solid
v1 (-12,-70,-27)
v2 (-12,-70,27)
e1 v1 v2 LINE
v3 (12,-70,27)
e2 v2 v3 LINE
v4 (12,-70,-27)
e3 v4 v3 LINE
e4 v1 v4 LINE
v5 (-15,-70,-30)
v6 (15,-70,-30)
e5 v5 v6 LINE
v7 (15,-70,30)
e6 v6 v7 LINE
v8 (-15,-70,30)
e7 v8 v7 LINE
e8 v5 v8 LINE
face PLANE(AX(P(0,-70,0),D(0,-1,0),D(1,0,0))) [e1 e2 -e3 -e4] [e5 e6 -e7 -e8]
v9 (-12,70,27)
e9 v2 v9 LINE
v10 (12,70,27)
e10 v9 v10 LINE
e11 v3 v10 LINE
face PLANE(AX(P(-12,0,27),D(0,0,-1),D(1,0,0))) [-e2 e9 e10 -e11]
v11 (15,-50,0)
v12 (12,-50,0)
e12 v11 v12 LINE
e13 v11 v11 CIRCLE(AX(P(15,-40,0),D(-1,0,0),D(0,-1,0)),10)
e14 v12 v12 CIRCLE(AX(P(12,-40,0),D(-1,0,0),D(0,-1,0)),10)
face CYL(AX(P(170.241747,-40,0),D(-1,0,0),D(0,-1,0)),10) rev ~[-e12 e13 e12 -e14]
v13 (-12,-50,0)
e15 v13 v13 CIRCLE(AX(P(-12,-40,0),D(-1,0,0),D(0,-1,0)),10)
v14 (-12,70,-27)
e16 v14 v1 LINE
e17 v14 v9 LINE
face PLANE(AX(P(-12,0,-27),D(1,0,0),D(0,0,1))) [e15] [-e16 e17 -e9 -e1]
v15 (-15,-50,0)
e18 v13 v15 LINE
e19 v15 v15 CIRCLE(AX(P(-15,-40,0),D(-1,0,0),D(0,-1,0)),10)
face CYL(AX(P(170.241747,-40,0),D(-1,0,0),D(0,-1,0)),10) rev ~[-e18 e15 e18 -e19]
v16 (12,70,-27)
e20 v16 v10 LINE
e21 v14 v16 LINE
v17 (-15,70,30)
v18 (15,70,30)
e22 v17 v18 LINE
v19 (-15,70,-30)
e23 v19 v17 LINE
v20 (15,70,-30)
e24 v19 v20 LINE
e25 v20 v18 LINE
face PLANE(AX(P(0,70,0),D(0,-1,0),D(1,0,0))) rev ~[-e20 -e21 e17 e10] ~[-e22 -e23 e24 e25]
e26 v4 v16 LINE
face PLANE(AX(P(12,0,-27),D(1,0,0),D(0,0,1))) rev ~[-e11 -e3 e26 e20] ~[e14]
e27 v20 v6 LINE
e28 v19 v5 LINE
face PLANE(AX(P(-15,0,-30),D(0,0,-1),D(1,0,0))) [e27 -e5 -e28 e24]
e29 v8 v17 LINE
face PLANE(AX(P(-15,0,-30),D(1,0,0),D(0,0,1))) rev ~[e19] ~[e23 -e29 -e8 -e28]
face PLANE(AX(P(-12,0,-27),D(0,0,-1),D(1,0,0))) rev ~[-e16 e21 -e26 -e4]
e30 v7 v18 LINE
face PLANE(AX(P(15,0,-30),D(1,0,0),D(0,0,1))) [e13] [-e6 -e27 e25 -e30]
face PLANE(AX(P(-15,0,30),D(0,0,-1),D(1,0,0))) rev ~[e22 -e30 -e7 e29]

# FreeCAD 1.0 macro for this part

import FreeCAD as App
import Part
import Sketcher
from FreeCAD import Vector


def add_polygon(sketch, points):
    """Adds a closed chain of lines whose ends are joined by coincident constraints."""
    first, n = sketch.GeometryCount, len(points)
    for a, b in zip(points, points[1:] + points[:1]):
        sketch.addGeometry(Part.LineSegment(App.Vector(*a, 0), App.Vector(*b, 0)), False)
    for i in range(n):
        sketch.addConstraint(Sketcher.Constraint("Coincident", first + i, 2, first + (i + 1) % n, 1))

doc = App.newDocument("Part")
params = doc.addObject("Spreadsheet::Sheet", "Params")
for row, (alias, value) in enumerate([
    ("sketch1_width", "30 mm"),
    ("sketch1_width2", "24 mm"),
    ("sketch1_height", "60 mm"),
    ("sketch1_height2", "54 mm"),
    ("pad1_length", "140 mm"),
    ("sketch2_diameter", "20 mm"),
    ("hole_diameter", "20 mm"),
], start=1):
    params.set(f"A{row}", alias)
    params.set(f"B{row}", "=" + value)
    params.setAlias(f"B{row}", alias)

body = doc.addObject("PartDesign::Body", "Body")

# Sketch on XZ plane
sketch1 = doc.addObject("Sketcher::SketchObject", "Sketch")
body.addObject(sketch1)
sketch1.AttachmentSupport = (doc.XZ_Plane, [""])
sketch1.MapMode = "FlatFace"
add_polygon(sketch1, [(-15, 30), (-15, -30), (15, -30), (15, 30)])  # lines 0-3
add_polygon(sketch1, [(12, -27), (-12, -27), (-12, 27), (12, 27)])  # lines 4-7
sketch1.addConstraint(Sketcher.Constraint("Vertical", 0))
sketch1.addConstraint(Sketcher.Constraint("Horizontal", 1))
sketch1.addConstraint(Sketcher.Constraint("Vertical", 2))
sketch1.addConstraint(Sketcher.Constraint("Horizontal", 3))
sketch1.addConstraint(Sketcher.Constraint("Horizontal", 4))
sketch1.addConstraint(Sketcher.Constraint("Vertical", 5))
sketch1.addConstraint(Sketcher.Constraint("Horizontal", 6))
sketch1.addConstraint(Sketcher.Constraint("Vertical", 7))
sketch1.addConstraint(Sketcher.Constraint("Symmetric", 0, 2, 2, 2, -1, 1))
sketch1.addConstraint(Sketcher.Constraint("Symmetric", 4, 2, 6, 2, -1, 1))
sketch1.addConstraint(Sketcher.Constraint("DistanceX", 1, 1, 1, 2, 30.0))
sketch1.addConstraint(Sketcher.Constraint("DistanceX", 4, 2, 4, 1, 24.0))
sketch1.addConstraint(Sketcher.Constraint("DistanceY", 0, 2, 0, 1, 60.0))
sketch1.addConstraint(Sketcher.Constraint("DistanceY", 5, 1, 5, 2, 54.0))
sketch1.setExpression("Constraints[18]", "Params.sketch1_width")
sketch1.setExpression("Constraints[19]", "Params.sketch1_width2")
sketch1.setExpression("Constraints[20]", "Params.sketch1_height")
sketch1.setExpression("Constraints[21]", "Params.sketch1_height2")
pad1 = doc.addObject("PartDesign::Pad", "Pad")
body.addObject(pad1)
pad1.Profile = sketch1
pad1.setExpression("Length", "Params.pad1_length")
pad1.Midplane = True

# Sketch on YZ plane
sketch2 = doc.addObject("Sketcher::SketchObject", "Sketch001")
body.addObject(sketch2)
sketch2.AttachmentSupport = (doc.YZ_Plane, [""])
sketch2.MapMode = "FlatFace"
sketch2.AttachmentOffset = App.Placement(Vector(0, 0, 15), App.Rotation())
sketch2.addGeometry(Part.Circle(Vector(-40, 0, 0), Vector(0, 0, 1), 10), False)
sketch2.addConstraint(Sketcher.Constraint("PointOnObject", 0, 3, -1))
sketch2.addConstraint(Sketcher.Constraint("Diameter", 0, 20.0))
sketch2.addConstraint(Sketcher.Constraint("DistanceX", 0, 3, -1, 1, 40.0))
sketch2.setExpression("Constraints[1]", "Params.sketch2_diameter")
doc.recompute()
hole = doc.addObject("PartDesign::Hole", "Hole")
body.addObject(hole)
hole.Profile = sketch2
hole.ThreadType = "None"
hole.setExpression("Diameter", "Params.hole_diameter")
hole.DepthType = "ThroughAll"

doc.recompute()
